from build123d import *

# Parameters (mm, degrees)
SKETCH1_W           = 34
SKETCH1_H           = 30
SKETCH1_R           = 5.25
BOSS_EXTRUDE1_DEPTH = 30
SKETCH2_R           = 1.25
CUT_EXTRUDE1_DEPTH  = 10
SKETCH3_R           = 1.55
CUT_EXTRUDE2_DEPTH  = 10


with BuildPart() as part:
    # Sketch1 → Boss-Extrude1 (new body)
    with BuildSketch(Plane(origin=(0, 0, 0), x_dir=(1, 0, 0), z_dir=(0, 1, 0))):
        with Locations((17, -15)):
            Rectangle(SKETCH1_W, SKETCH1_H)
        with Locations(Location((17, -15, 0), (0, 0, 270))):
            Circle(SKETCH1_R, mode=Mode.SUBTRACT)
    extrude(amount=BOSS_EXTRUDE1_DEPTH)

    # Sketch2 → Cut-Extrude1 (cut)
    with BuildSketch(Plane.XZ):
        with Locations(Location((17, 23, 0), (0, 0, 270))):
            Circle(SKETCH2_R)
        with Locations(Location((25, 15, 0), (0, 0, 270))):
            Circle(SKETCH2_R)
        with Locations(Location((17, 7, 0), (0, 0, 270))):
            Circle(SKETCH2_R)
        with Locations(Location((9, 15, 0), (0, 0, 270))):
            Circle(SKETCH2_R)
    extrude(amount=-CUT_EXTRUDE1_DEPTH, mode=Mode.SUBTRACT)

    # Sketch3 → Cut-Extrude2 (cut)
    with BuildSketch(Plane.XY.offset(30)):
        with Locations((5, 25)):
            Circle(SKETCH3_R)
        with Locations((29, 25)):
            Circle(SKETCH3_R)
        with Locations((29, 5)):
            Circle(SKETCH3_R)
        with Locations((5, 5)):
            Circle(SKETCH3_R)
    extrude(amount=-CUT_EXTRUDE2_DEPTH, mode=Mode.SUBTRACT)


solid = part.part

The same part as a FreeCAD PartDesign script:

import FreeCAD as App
import Part
import Sketcher

V = App.Vector


def add_polygon(sketch, points):
    """Adds a closed chain of lines whose ends are joined by coincident constraints."""
    first, n = sketch.GeometryCount, len(points)
    for a, b in zip(points, points[1:] + points[:1]):
        sketch.addGeometry(Part.LineSegment(App.Vector(*a, 0), App.Vector(*b, 0)), False)
    for i in range(n):
        sketch.addConstraint(Sketcher.Constraint("Coincident", first + i, 2, first + (i + 1) % n, 1))

doc = App.newDocument("Part")
body = doc.addObject("PartDesign::Body", "Body")

# Sketch on XZ plane
sketch1 = doc.addObject("Sketcher::SketchObject", "Sketch")
body.addObject(sketch1)
sketch1.AttachmentSupport = (doc.XZ_Plane, [""])
sketch1.MapMode = "FlatFace"
add_polygon(sketch1, [(0, 0), (0, 30), (34, 30), (34, 0)])  # lines 0-3
sketch1.addGeometry(Part.Circle(V(17, 15, 0), V(0, 0, 1), 5.25), False)  # 4
sketch1.addConstraint([
    Sketcher.Constraint("Vertical", 0),
    Sketcher.Constraint("Horizontal", 1),
    Sketcher.Constraint("Vertical", 2),
    Sketcher.Constraint("Horizontal", 3),
    Sketcher.Constraint("Coincident", 3, 2, -1, 1),
    Sketcher.Constraint("Diameter", 4, 10.5),
    Sketcher.Constraint("DistanceX", 1, 1, 1, 2, 34.0),
    Sketcher.Constraint("DistanceY", 0, 1, 0, 2, 30.0),
    Sketcher.Constraint("DistanceX", -1, 1, 4, 3, 17.0),
    Sketcher.Constraint("DistanceY", -1, 1, 4, 3, 15.0),
])
pad1 = doc.addObject("PartDesign::Pad", "Pad")
body.addObject(pad1)
pad1.Profile = sketch1
pad1.Length = 30
pad1.Reversed = True

# Sketch on XZ plane
sketch2 = doc.addObject("Sketcher::SketchObject", "Sketch001")
body.addObject(sketch2)
sketch2.AttachmentSupport = (doc.XZ_Plane, [""])
sketch2.MapMode = "FlatFace"
sketch2.addGeometry([
    Part.Circle(V(17, 23, 0), V(0, 0, 1), 1.25),
    Part.Circle(V(25, 15, 0), V(0, 0, 1), 1.25),
    Part.Circle(V(17, 7, 0), V(0, 0, 1), 1.25),
    Part.Circle(V(9, 15, 0), V(0, 0, 1), 1.25),
], False)
sketch2.addConstraint([
    Sketcher.Constraint("Equal", 0, 1),
    Sketcher.Constraint("Equal", 1, 2),
    Sketcher.Constraint("Equal", 2, 3),
    Sketcher.Constraint("Horizontal", 1, 3, 3, 3),
    Sketcher.Constraint("Vertical", 0, 3, 2, 3),
    Sketcher.Constraint("Diameter", 0, 2.5),
    Sketcher.Constraint("DistanceX", -1, 1, 0, 3, 17.0),
    Sketcher.Constraint("DistanceY", -1, 1, 0, 3, 23.0),
    Sketcher.Constraint("DistanceX", -1, 1, 1, 3, 25.0),
    Sketcher.Constraint("DistanceY", -1, 1, 1, 3, 15.0),
    Sketcher.Constraint("DistanceY", -1, 1, 2, 3, 7.0),
    Sketcher.Constraint("DistanceX", -1, 1, 3, 3, 9.0),
])
pocket1 = doc.addObject("PartDesign::Pocket", "Pocket")
body.addObject(pocket1)
pocket1.Profile = sketch2
pocket1.Length = 10

# Sketch on XY plane
sketch3 = doc.addObject("Sketcher::SketchObject", "Sketch002")
body.addObject(sketch3)
sketch3.AttachmentSupport = (doc.XY_Plane, [""])
sketch3.MapMode = "FlatFace"
sketch3.AttachmentOffset = App.Placement(V(0, 0, 30), App.Rotation())
sketch3.addGeometry([
    Part.Circle(V(5, 25, 0), V(0, 0, 1), 1.55),
    Part.Circle(V(29, 25, 0), V(0, 0, 1), 1.55),
    Part.Circle(V(29, 5, 0), V(0, 0, 1), 1.55),
    Part.Circle(V(5, 5, 0), V(0, 0, 1), 1.55),
], False)
sketch3.addConstraint([
    Sketcher.Constraint("Equal", 0, 1),
    Sketcher.Constraint("Equal", 1, 2),
    Sketcher.Constraint("Equal", 2, 3),
    Sketcher.Constraint("Horizontal", 0, 3, 1, 3),
    Sketcher.Constraint("Horizontal", 2, 3, 3, 3),
    Sketcher.Constraint("Vertical", 1, 3, 2, 3),
    Sketcher.Constraint("Vertical", 0, 3, 3, 3),
    Sketcher.Constraint("Diameter", 0, 3.1),
    Sketcher.Constraint("DistanceX", -1, 1, 0, 3, 5.0),
    Sketcher.Constraint("DistanceY", -1, 1, 0, 3, 25.0),
    Sketcher.Constraint("DistanceX", -1, 1, 1, 3, 29.0),
    Sketcher.Constraint("DistanceY", -1, 1, 2, 3, 5.0),
])
pocket2 = doc.addObject("PartDesign::Pocket", "Pocket001")
body.addObject(pocket2)
pocket2.Profile = sketch3
pocket2.Length = 10

doc.recompute()
